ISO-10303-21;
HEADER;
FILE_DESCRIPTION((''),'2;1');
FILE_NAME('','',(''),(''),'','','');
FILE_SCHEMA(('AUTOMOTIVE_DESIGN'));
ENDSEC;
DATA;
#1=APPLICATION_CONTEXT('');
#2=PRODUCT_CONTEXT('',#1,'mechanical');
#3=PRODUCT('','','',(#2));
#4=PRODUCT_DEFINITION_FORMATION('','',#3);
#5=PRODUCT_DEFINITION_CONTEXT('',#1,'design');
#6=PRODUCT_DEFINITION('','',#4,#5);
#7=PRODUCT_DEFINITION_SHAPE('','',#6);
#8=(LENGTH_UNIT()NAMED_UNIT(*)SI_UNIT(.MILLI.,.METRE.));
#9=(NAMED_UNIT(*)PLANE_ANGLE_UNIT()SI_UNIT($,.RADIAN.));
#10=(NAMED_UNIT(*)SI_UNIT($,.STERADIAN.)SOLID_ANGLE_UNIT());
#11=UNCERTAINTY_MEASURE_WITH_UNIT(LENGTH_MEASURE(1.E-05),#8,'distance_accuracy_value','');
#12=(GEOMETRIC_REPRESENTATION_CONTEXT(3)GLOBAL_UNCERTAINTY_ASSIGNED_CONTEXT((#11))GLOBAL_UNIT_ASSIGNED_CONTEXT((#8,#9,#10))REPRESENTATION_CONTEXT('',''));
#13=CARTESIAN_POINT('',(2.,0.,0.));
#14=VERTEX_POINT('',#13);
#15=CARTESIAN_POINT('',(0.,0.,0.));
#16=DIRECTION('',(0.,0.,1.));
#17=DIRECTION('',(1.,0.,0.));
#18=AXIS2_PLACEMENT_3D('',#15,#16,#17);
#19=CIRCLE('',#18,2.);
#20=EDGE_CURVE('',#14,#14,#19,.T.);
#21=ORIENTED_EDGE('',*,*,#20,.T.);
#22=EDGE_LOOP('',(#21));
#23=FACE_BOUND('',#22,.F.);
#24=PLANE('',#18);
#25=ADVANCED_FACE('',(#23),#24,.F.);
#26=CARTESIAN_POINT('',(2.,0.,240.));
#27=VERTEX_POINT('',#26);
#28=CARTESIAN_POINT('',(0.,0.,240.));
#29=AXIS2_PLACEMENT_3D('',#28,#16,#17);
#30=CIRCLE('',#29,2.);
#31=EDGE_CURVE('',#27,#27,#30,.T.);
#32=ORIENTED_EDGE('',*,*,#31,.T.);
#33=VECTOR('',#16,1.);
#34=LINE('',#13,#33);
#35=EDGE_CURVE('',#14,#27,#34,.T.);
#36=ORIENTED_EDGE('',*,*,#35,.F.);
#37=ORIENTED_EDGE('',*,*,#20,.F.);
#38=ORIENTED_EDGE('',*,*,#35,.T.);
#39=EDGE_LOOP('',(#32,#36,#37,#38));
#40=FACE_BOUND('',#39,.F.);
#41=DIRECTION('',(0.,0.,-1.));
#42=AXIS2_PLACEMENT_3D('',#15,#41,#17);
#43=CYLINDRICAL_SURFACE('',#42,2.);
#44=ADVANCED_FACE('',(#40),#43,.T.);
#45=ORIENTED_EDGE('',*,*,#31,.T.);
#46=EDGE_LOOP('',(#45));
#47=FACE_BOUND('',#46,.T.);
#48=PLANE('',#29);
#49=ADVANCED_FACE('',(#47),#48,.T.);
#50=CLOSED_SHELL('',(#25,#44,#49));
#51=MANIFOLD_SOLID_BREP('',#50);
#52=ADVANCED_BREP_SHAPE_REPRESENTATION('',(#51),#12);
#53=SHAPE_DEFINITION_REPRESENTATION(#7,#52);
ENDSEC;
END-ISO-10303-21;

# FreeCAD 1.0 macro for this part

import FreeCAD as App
import Part
import Sketcher
from FreeCAD import Vector
Q = App.Units.Quantity

doc = App.newDocument("Part")
body = doc.addObject("PartDesign::Body", "Body")

sketch1 = body.newObject("Sketcher::SketchObject", "Sketch")
sketch1.AttachmentSupport = (doc.getObject("XY_Plane"), [""])
sketch1.MapMode = "FlatFace"
sketch1.addGeometry(Part.Circle(Vector(0, 0, 0), Vector(0, 0, 1), 2), False)
sketch1.addConstraint([
    Sketcher.Constraint("Coincident", 0, 3, -1, 1),
    Sketcher.Constraint("Diameter", 0, Q("4 mm")),
])
pad1 = body.newObject("PartDesign::Pad", "Pad")
pad1.Profile = sketch1
pad1.Length = 240

doc.recompute()
